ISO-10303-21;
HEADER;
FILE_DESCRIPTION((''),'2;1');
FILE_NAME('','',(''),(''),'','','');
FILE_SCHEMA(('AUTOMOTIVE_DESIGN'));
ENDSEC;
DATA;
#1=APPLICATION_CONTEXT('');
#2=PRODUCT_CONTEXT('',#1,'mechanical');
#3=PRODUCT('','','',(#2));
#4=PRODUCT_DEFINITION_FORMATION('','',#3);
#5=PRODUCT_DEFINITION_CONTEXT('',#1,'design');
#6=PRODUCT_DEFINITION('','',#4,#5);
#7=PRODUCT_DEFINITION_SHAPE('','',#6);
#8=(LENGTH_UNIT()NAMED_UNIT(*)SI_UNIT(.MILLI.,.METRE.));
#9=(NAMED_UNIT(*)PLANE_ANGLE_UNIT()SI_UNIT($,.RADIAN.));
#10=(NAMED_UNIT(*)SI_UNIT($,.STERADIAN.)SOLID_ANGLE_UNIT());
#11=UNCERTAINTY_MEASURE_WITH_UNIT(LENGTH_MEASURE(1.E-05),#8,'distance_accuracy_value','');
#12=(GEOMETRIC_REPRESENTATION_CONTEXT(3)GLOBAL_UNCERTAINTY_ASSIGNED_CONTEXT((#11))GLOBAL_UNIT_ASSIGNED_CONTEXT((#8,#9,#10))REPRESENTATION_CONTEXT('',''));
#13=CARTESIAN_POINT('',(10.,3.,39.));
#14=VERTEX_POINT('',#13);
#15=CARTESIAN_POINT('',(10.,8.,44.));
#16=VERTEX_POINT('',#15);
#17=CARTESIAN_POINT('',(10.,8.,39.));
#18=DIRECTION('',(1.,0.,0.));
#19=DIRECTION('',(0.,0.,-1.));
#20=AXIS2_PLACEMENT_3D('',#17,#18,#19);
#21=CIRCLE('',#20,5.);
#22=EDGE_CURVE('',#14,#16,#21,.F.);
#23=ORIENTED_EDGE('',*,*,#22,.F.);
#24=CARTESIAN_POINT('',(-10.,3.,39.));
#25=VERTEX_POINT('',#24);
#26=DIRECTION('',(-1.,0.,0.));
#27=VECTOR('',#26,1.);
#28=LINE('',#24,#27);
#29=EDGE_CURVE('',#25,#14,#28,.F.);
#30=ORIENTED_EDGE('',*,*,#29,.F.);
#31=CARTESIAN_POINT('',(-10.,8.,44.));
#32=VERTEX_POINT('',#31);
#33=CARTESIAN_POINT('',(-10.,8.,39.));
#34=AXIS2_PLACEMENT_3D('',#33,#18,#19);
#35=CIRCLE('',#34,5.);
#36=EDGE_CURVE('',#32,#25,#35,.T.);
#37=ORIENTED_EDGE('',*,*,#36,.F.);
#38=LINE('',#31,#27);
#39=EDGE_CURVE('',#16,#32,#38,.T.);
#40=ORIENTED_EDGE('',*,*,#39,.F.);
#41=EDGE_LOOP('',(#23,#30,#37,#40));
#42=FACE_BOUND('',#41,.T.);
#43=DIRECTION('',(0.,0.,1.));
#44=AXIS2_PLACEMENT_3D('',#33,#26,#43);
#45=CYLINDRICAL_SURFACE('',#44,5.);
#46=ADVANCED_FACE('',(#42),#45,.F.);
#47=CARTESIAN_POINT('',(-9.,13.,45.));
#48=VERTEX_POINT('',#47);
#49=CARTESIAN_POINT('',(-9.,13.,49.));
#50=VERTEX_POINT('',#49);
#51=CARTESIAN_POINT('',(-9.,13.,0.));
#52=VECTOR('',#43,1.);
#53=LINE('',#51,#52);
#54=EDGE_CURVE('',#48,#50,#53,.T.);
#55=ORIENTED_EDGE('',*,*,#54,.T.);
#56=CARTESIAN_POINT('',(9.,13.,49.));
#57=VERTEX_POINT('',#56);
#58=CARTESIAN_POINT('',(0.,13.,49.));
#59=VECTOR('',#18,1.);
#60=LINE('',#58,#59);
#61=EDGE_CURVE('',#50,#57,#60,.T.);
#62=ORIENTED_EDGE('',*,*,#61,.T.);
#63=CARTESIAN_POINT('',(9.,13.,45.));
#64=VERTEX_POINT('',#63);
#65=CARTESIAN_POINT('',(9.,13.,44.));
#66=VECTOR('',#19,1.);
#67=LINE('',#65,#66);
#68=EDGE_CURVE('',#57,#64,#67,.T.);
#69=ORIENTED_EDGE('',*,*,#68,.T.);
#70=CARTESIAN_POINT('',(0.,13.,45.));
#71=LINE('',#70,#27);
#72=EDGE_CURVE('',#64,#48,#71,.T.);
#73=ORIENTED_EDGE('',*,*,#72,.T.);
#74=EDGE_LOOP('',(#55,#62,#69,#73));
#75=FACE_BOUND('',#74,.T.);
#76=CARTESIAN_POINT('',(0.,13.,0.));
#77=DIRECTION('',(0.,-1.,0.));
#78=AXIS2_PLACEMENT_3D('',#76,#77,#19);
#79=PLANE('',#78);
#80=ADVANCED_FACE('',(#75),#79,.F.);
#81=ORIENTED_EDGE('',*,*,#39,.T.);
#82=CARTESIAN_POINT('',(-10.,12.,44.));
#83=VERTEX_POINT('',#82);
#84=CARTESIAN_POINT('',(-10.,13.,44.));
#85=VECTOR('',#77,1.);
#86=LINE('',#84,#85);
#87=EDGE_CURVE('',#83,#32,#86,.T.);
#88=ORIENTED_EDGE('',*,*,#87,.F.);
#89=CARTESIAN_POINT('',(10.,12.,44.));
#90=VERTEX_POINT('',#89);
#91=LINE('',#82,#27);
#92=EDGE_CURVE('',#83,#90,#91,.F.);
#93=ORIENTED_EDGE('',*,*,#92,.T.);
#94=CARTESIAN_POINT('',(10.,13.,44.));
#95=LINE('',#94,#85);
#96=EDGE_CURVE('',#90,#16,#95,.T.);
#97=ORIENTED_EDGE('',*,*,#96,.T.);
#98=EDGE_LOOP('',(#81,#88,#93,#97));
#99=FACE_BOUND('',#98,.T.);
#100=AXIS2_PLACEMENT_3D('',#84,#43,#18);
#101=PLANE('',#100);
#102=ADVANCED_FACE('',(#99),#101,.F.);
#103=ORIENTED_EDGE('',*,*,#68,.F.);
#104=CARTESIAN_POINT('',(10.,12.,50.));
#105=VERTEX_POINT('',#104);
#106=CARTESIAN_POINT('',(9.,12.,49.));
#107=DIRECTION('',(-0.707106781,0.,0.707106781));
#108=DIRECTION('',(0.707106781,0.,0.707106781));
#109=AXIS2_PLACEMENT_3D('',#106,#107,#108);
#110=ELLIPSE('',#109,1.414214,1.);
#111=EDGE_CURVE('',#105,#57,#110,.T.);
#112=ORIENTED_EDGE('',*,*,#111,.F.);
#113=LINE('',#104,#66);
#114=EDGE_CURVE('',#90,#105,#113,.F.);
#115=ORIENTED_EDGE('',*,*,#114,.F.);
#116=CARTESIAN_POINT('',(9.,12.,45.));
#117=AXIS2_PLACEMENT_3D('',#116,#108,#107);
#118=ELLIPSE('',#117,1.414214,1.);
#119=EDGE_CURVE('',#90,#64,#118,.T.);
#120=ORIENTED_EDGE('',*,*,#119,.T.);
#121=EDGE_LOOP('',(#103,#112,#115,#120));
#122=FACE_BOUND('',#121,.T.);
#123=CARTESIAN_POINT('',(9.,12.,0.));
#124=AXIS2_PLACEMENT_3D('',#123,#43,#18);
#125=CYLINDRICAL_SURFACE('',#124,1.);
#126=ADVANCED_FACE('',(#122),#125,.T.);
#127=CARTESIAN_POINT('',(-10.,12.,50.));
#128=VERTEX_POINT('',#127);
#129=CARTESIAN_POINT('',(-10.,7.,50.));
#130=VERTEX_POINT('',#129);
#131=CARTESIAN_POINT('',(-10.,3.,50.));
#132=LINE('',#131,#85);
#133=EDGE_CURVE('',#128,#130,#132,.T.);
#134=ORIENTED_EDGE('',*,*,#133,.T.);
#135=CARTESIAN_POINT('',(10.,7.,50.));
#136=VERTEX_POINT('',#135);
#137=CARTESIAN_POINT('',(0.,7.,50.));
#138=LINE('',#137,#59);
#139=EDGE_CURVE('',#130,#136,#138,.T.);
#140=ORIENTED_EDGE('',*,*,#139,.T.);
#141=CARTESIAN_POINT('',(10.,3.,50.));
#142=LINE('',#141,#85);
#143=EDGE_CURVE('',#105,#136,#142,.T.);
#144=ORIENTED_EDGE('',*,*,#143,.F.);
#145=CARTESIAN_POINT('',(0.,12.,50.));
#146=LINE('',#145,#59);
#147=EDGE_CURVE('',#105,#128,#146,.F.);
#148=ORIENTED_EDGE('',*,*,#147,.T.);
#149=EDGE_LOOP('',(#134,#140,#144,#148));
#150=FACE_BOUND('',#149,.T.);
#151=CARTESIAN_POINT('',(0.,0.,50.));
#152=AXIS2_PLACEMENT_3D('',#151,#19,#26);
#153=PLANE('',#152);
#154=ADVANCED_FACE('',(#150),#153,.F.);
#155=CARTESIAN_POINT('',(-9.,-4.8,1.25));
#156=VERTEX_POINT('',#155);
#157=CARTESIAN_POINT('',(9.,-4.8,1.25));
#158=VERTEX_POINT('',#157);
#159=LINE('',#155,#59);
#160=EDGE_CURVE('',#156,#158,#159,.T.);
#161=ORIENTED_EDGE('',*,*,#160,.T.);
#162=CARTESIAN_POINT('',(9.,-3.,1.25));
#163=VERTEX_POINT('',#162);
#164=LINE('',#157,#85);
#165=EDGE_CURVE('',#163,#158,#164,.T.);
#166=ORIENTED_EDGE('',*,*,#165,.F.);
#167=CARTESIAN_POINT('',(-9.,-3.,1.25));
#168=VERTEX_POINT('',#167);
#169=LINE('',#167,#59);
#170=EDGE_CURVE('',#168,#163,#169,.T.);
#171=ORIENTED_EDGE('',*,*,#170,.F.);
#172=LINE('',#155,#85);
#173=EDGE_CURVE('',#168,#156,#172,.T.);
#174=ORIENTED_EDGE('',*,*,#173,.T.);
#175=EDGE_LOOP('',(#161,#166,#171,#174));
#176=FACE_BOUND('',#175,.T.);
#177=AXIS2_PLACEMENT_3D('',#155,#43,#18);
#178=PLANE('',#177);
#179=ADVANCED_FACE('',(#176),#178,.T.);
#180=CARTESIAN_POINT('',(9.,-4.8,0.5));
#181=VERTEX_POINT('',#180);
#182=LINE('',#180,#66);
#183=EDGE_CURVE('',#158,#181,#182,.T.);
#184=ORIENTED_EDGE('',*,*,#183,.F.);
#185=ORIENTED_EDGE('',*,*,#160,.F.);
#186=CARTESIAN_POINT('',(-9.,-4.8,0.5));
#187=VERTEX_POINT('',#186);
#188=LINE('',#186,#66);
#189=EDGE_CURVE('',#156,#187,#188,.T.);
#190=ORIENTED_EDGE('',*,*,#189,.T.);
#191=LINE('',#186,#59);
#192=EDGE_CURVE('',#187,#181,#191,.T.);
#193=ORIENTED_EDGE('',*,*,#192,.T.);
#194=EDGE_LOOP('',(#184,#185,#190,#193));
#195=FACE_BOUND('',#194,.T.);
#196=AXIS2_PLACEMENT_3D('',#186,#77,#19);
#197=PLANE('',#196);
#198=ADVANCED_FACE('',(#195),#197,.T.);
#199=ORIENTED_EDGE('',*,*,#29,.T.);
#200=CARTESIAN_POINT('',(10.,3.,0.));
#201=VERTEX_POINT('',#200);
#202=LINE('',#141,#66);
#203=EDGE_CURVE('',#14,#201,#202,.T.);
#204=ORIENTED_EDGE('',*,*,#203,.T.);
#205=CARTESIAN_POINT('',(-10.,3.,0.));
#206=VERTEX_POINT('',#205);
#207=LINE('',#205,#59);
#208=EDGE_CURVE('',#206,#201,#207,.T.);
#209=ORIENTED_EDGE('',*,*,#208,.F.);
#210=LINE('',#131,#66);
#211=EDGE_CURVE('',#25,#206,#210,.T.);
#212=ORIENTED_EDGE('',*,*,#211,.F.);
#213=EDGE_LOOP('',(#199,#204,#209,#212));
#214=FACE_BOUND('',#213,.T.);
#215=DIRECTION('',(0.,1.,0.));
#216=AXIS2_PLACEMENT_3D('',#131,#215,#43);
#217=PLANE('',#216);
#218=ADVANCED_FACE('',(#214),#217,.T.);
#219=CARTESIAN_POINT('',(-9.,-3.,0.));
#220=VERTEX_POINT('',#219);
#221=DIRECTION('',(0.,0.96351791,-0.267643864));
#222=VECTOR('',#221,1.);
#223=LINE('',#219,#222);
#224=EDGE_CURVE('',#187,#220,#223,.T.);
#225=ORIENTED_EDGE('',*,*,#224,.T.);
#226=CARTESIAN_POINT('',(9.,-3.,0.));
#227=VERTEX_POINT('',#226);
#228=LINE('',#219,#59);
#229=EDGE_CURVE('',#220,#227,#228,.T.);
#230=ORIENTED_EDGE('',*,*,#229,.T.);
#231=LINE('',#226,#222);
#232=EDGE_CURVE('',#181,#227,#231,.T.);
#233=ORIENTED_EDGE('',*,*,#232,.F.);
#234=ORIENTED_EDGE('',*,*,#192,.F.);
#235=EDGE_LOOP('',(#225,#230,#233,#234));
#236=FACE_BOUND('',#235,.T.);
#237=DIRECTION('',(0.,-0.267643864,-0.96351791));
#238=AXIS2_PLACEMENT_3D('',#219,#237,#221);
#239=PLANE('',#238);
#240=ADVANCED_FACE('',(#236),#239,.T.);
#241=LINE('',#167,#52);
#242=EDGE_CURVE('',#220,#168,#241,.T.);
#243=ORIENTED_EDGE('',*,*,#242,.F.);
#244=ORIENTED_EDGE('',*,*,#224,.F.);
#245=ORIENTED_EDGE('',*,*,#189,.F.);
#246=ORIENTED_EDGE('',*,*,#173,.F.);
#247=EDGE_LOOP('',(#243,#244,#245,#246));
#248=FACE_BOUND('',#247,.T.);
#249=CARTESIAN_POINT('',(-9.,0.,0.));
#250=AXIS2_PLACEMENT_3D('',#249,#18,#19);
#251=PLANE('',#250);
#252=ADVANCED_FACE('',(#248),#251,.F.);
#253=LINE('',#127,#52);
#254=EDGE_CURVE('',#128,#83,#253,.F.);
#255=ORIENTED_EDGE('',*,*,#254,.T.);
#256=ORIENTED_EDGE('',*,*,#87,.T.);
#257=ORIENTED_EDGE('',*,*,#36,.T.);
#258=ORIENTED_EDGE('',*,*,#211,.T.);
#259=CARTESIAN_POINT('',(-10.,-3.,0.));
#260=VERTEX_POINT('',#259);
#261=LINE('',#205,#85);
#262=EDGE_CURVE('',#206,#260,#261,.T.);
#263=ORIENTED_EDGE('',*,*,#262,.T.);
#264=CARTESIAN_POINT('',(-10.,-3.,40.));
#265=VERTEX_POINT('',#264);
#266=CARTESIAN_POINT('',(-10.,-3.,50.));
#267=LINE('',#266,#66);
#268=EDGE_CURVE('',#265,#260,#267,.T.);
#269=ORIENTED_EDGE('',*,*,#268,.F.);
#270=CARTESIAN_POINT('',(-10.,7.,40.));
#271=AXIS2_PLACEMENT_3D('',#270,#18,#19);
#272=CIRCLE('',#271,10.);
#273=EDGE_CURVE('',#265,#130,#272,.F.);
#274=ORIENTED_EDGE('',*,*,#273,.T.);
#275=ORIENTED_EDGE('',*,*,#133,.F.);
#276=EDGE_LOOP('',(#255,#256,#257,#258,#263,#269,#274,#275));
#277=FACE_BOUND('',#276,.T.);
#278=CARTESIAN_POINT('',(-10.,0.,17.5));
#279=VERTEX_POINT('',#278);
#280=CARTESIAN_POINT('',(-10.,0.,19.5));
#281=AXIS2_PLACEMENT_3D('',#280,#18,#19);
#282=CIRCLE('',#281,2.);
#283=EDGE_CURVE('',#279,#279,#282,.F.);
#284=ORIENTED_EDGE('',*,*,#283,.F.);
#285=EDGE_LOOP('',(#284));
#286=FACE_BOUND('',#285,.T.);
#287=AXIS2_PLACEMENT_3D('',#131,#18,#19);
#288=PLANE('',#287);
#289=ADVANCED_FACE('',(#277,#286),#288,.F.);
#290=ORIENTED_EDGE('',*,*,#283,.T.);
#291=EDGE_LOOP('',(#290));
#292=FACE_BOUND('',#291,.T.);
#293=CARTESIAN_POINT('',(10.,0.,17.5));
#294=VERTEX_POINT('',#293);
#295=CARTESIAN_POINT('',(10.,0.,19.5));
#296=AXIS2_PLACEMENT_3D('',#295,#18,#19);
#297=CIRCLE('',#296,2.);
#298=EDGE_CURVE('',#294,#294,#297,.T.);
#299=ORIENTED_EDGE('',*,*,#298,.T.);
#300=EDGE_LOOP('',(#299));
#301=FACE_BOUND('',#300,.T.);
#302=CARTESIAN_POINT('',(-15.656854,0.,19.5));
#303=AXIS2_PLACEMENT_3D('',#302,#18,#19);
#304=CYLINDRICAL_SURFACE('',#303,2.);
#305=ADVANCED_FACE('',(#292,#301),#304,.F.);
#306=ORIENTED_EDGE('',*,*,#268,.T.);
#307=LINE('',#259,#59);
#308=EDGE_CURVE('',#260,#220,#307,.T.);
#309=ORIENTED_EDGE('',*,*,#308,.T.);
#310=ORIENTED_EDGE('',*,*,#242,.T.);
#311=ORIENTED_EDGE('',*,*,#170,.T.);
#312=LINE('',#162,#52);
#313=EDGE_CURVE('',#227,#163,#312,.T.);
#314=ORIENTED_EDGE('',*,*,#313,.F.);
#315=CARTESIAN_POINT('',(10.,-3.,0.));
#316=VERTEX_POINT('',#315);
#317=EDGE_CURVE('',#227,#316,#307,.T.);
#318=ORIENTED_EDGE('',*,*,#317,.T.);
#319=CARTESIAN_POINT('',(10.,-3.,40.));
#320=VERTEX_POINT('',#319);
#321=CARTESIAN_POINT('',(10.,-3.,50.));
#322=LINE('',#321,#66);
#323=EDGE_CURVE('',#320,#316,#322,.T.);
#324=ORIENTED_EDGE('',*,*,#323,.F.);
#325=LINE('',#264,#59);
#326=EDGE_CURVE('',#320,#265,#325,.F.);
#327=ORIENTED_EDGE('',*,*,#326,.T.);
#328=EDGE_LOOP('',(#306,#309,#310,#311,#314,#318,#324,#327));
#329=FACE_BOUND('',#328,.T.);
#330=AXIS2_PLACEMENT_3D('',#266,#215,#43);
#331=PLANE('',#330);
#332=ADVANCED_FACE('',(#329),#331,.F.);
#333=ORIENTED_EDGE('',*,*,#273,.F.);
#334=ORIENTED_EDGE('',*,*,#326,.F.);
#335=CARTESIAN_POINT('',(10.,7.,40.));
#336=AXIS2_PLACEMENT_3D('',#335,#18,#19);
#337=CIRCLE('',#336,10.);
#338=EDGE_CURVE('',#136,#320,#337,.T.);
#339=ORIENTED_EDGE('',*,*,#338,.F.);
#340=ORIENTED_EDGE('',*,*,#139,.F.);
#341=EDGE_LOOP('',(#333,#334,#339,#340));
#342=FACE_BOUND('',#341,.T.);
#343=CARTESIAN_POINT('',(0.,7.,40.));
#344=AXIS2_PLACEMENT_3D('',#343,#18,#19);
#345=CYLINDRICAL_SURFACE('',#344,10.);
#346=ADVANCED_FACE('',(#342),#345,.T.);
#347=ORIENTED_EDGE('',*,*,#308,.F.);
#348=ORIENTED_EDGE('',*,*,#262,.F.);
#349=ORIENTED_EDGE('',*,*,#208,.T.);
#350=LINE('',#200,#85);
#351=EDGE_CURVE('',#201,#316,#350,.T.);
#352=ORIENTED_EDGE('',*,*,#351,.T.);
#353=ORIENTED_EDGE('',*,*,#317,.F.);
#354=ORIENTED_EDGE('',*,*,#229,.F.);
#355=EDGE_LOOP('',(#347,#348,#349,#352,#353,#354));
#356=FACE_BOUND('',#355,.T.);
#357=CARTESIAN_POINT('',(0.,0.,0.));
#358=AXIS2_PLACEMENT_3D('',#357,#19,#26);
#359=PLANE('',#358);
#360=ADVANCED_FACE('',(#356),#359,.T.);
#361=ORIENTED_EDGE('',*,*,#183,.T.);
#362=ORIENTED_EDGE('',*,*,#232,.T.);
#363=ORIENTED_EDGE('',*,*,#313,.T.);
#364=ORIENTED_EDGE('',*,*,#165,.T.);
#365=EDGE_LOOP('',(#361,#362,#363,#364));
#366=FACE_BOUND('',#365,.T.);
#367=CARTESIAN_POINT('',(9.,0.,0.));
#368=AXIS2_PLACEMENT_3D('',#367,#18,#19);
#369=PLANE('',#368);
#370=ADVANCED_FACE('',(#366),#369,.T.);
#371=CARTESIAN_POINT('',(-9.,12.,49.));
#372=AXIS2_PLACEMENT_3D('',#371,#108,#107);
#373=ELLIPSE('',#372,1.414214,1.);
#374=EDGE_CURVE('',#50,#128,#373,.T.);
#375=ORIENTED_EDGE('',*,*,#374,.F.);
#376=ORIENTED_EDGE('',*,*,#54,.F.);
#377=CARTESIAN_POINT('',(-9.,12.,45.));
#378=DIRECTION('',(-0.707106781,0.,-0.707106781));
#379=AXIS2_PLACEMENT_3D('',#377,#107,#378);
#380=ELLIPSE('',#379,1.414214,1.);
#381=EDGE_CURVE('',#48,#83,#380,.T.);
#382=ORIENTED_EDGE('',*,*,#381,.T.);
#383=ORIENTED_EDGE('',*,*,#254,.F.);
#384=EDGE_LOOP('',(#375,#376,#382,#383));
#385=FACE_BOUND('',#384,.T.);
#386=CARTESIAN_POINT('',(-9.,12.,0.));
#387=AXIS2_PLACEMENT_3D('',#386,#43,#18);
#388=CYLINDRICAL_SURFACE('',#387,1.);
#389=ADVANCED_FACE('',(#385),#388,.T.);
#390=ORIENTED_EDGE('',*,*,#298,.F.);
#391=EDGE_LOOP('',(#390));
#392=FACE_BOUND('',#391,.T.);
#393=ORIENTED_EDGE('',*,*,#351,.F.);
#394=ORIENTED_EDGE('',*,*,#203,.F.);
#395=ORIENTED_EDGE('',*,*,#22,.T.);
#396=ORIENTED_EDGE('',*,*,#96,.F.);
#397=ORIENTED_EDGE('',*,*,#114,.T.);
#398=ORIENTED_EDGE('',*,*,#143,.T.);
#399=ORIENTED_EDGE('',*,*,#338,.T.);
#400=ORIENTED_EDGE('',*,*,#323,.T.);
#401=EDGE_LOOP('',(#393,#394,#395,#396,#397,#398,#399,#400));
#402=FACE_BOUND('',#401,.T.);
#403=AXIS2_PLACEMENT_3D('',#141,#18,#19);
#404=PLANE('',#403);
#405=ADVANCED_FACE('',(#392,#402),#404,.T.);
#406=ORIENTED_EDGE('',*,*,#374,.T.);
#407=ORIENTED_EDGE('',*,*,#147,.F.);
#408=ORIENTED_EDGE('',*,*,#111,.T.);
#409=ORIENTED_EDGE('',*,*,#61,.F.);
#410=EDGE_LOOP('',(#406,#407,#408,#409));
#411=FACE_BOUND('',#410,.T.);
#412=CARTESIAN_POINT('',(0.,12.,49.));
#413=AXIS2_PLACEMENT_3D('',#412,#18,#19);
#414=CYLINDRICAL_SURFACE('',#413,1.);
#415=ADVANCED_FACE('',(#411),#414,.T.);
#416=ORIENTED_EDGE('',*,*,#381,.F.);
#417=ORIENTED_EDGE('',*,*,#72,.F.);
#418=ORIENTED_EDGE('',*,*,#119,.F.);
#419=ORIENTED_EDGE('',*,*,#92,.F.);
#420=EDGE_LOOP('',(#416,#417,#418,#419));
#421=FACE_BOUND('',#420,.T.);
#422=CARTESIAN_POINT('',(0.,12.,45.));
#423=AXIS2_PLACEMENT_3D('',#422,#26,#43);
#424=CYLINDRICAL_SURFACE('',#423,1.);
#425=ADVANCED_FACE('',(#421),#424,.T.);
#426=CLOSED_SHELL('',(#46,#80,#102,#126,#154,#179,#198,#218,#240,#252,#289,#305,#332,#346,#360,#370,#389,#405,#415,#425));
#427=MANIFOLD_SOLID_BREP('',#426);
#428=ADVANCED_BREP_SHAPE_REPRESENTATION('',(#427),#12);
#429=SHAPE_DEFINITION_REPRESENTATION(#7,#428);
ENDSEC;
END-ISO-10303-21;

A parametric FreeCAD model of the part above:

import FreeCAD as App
import Part
import Sketcher

V = App.Vector


def edges_at(feature, points):
    """Names of the edges that pass closest to the given points."""
    edges = feature.Shape.Edges
    near = lambda p: min(range(len(edges)), key=lambda i: edges[i].distToShape(Part.Vertex(*p))[0])
    return sorted({f"Edge{near(p) + 1}" for p in points})

doc = App.newDocument("Part")
body = doc.addObject("PartDesign::Body", "Body")

# Sketch on XY plane
sketch1 = body.newObject("Sketcher::SketchObject", "Sketch")
sketch1.AttachmentSupport = (doc.getObject("XY_Plane"), [""])
sketch1.MapMode = "FlatFace"
sketch1.addGeometry([
    Part.LineSegment(V(-10, 3, 0), V(-10, -3, 0)),
    Part.LineSegment(V(-10, -3, 0), V(10, -3, 0)),
    Part.LineSegment(V(10, -3, 0), V(10, 3, 0)),
    Part.LineSegment(V(10, 3, 0), V(-10, 3, 0)),
], False)
sketch1.addConstraint([
    Sketcher.Constraint("Coincident", 0, 2, 1, 1),
    Sketcher.Constraint("Coincident", 1, 2, 2, 1),
    Sketcher.Constraint("Coincident", 2, 2, 3, 1),
    Sketcher.Constraint("Coincident", 3, 2, 0, 1),
    Sketcher.Constraint("Vertical", 0),
    Sketcher.Constraint("Horizontal", 1),
    Sketcher.Constraint("Vertical", 2),
    Sketcher.Constraint("Horizontal", 3),
    Sketcher.Constraint("Symmetric", 0, 2, 2, 2, -1, 1),
    Sketcher.Constraint("DistanceX", 1, 1, 1, 2, 20.0),
    Sketcher.Constraint("DistanceY", 0, 2, 0, 1, 6.0),
])
pad1 = body.newObject("PartDesign::Pad", "Pad")
pad1.Profile = sketch1
pad1.Length = 50

# Sketch on YZ plane
sketch2 = body.newObject("Sketcher::SketchObject", "Sketch001")
sketch2.AttachmentSupport = (doc.getObject("YZ_Plane"), [""])
sketch2.MapMode = "FlatFace"
sketch2.addGeometry([
    Part.LineSegment(V(-4.8, 0.5, 0), V(-3, 0, 0)),
    Part.LineSegment(V(-3, 0, 0), V(-3, 1.2, 0)),
    Part.LineSegment(V(-3, 1.2, 0), V(-4.8, 1.2, 0)),
    Part.LineSegment(V(-4.8, 1.2, 0), V(-4.8, 0.5, 0)),
], False)
sketch2.addConstraint([
    Sketcher.Constraint("Coincident", 0, 2, 1, 1),
    Sketcher.Constraint("Coincident", 1, 2, 2, 1),
    Sketcher.Constraint("Coincident", 2, 2, 3, 1),
    Sketcher.Constraint("Coincident", 3, 2, 0, 1),
    Sketcher.Constraint("Vertical", 1),
    Sketcher.Constraint("Horizontal", 2),
    Sketcher.Constraint("Vertical", 3),
    Sketcher.Constraint("PointOnObject", 0, 2, -1),
    Sketcher.Constraint("DistanceX", 2, 2, 2, 1, 1.8),
    Sketcher.Constraint("DistanceX", 0, 2, -1, 1, 3.0),
    Sketcher.Constraint("DistanceY", 1, 1, 1, 2, 1.25),
    Sketcher.Constraint("DistanceY", 3, 2, 3, 1, 0.75),
])
pad2 = body.newObject("PartDesign::Pad", "Pad001")
pad2.Profile = sketch2
pad2.Type = "TwoLengths"
pad2.Length = 9
pad2.Length2 = 9

# Sketch on YZ plane
sketch3 = body.newObject("Sketcher::SketchObject", "Sketch002")
sketch3.AttachmentSupport = (doc.getObject("YZ_Plane"), [""])
sketch3.MapMode = "FlatFace"
sketch3.AttachmentOffset = App.Placement(V(0, 0, 10), App.Rotation())
sketch3.addGeometry(Part.Circle(V(0, 19.5, 0), V(0, 0, 1), 2), False)
sketch3.addConstraint([
    Sketcher.Constraint("PointOnObject", 0, 3, -2),
    Sketcher.Constraint("Diameter", 0, 4.0),
    Sketcher.Constraint("DistanceY", -1, 1, 0, 3, 19.5),
])
pocket1 = body.newObject("PartDesign::Pocket", "Pocket")
pocket1.Profile = sketch3
pocket1.Length = 20

# Sketch on XZ plane
sketch4 = body.newObject("Sketcher::SketchObject", "Sketch003")
sketch4.AttachmentSupport = (doc.getObject("XZ_Plane"), [""])
sketch4.MapMode = "FlatFace"
sketch4.AttachmentOffset = App.Placement(V(0, 0, -3), App.Rotation())
sketch4.addGeometry([
    Part.LineSegment(V(-10, 44, 0), V(-10, 50, 0)),
    Part.LineSegment(V(-10, 50, 0), V(10, 50, 0)),
    Part.LineSegment(V(10, 50, 0), V(10, 44, 0)),
    Part.LineSegment(V(10, 44, 0), V(-10, 44, 0)),
], False)
sketch4.addConstraint([
    Sketcher.Constraint("Coincident", 0, 2, 1, 1),
    Sketcher.Constraint("Coincident", 1, 2, 2, 1),
    Sketcher.Constraint("Coincident", 2, 2, 3, 1),
    Sketcher.Constraint("Coincident", 3, 2, 0, 1),
    Sketcher.Constraint("Vertical", 0),
    Sketcher.Constraint("Horizontal", 1),
    Sketcher.Constraint("Vertical", 2),
    Sketcher.Constraint("Horizontal", 3),
    Sketcher.Constraint("DistanceX", 1, 1, 1, 2, 20.0),
    Sketcher.Constraint("DistanceY", 0, 1, 0, 2, 6.0),
    Sketcher.Constraint("DistanceX", 0, 2, -1, 1, 10.0),
    Sketcher.Constraint("DistanceY", -1, 1, 0, 2, 50.0),
])
pad3 = body.newObject("PartDesign::Pad", "Pad002")
pad3.Profile = sketch4
pad3.Length = 10
pad3.Reversed = True
doc.recompute()

fillet = body.newObject("PartDesign::Fillet", "Fillet")
fillet.Base = (pad3, edges_at(pad3, [(0, -3, 50)]))
fillet.Radius = 10
doc.recompute()

fillet2 = body.newObject("PartDesign::Fillet", "Fillet001")
fillet2.Base = (fillet, edges_at(fillet, [(0, 3, 44)]))
fillet2.Radius = 5
doc.recompute()

fillet3 = body.newObject("PartDesign::Fillet", "Fillet002")
fillet3.Base = (fillet2, edges_at(fillet2, [
    (-10, 13, 47),
    (0, 13, 50),
    (10, 13, 47),
    (0, 13, 44),
]))
fillet3.Radius = 1

doc.recompute()
